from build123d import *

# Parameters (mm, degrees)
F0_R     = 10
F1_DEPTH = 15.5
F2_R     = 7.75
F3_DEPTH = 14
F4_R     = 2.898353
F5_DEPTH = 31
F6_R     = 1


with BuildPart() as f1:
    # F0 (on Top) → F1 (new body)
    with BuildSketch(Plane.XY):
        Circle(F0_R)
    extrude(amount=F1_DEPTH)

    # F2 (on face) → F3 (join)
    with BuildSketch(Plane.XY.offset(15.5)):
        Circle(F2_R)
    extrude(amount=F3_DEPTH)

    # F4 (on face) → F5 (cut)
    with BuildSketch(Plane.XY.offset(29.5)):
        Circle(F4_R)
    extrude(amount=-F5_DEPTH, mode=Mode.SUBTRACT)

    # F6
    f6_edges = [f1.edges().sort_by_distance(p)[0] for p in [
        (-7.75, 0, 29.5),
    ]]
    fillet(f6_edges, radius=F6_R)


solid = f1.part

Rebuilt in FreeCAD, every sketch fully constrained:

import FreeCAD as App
import Part
import Sketcher

V = App.Vector
Q = App.Units.Quantity


def edges_at(feature, points):
    """Names of the edges that pass closest to the given points."""
    edges = feature.Shape.Edges
    near = lambda p: min(range(len(edges)), key=lambda i: edges[i].distToShape(Part.Vertex(*p))[0])
    return sorted({f"Edge{near(p) + 1}" for p in points})

doc = App.newDocument("Part")
params = doc.addObject("Spreadsheet::Sheet", "Params")
for row, (alias, value) in enumerate([
    ("sketch1_diameter", "20 mm"),
    ("pad1_length", "15.5 mm"),
    ("sketch2_diameter", "15.5 mm"),
    ("pad2_length", "14 mm"),
    ("pocket1_length", "31 mm"),
    ("fillet_radius", "1 mm"),
], start=1):
    params.set(f"A{row}", alias)
    params.set(f"B{row}", "=" + value)
    params.setAlias(f"B{row}", alias)

body = doc.addObject("PartDesign::Body", "Body")

# Sketch on XY plane
sketch1 = body.newObject("Sketcher::SketchObject", "Sketch")
sketch1.AttachmentSupport = (doc.getObject("XY_Plane"), [""])
sketch1.MapMode = "FlatFace"
sketch1.addGeometry(Part.Circle(V(0, 0, 0), V(0, 0, 1), 10), False)
sketch1.addConstraint(Sketcher.Constraint("Coincident", 0, 3, -1, 1))
sketch1.addConstraint(Sketcher.Constraint("Diameter", 0, Q("20 mm")))
sketch1.setExpression("Constraints[1]", "Params.sketch1_diameter")
pad1 = body.newObject("PartDesign::Pad", "Pad")
pad1.Profile = sketch1
pad1.setExpression("Length", "Params.pad1_length")

# Sketch on XY plane
sketch2 = body.newObject("Sketcher::SketchObject", "Sketch001")
sketch2.AttachmentSupport = (doc.getObject("XY_Plane"), [""])
sketch2.MapMode = "FlatFace"
sketch2.AttachmentOffset = App.Placement(V(0, 0, 15.5), App.Rotation())
sketch2.addGeometry(Part.Circle(V(0, 0, 0), V(0, 0, 1), 8), False)
sketch2.addConstraint(Sketcher.Constraint("Coincident", 0, 3, -1, 1))
sketch2.addConstraint(Sketcher.Constraint("Diameter", 0, Q("15.5 mm")))
sketch2.setExpression("Constraints[1]", "Params.sketch2_diameter")
pad2 = body.newObject("PartDesign::Pad", "Pad001")
pad2.Profile = sketch2
pad2.setExpression("Length", "Params.pad2_length")

# Sketch on XY plane
sketch3 = body.newObject("Sketcher::SketchObject", "Sketch002")
sketch3.AttachmentSupport = (doc.getObject("XY_Plane"), [""])
sketch3.MapMode = "FlatFace"
sketch3.AttachmentOffset = App.Placement(V(0, 0, 29.5), App.Rotation())
sketch3.addGeometry(Part.Circle(V(0, 0, 0), V(0, 0, 1), 2.9), False)
sketch3.addConstraint(Sketcher.Constraint("Coincident", 0, 3, -1, 1))
sketch3.addConstraint(Sketcher.Constraint("Diameter", 0, Q("5.796706 mm")))
pocket1 = body.newObject("PartDesign::Pocket", "Pocket")
pocket1.Profile = sketch3
pocket1.setExpression("Length", "Params.pocket1_length")
doc.recompute()

fillet = body.newObject("PartDesign::Fillet", "Fillet")
fillet.Base = (pocket1, edges_at(pocket1, [(-7.75, 0, 29.5)]))
fillet.setExpression("Radius", "Params.fillet_radius")

doc.recompute()
